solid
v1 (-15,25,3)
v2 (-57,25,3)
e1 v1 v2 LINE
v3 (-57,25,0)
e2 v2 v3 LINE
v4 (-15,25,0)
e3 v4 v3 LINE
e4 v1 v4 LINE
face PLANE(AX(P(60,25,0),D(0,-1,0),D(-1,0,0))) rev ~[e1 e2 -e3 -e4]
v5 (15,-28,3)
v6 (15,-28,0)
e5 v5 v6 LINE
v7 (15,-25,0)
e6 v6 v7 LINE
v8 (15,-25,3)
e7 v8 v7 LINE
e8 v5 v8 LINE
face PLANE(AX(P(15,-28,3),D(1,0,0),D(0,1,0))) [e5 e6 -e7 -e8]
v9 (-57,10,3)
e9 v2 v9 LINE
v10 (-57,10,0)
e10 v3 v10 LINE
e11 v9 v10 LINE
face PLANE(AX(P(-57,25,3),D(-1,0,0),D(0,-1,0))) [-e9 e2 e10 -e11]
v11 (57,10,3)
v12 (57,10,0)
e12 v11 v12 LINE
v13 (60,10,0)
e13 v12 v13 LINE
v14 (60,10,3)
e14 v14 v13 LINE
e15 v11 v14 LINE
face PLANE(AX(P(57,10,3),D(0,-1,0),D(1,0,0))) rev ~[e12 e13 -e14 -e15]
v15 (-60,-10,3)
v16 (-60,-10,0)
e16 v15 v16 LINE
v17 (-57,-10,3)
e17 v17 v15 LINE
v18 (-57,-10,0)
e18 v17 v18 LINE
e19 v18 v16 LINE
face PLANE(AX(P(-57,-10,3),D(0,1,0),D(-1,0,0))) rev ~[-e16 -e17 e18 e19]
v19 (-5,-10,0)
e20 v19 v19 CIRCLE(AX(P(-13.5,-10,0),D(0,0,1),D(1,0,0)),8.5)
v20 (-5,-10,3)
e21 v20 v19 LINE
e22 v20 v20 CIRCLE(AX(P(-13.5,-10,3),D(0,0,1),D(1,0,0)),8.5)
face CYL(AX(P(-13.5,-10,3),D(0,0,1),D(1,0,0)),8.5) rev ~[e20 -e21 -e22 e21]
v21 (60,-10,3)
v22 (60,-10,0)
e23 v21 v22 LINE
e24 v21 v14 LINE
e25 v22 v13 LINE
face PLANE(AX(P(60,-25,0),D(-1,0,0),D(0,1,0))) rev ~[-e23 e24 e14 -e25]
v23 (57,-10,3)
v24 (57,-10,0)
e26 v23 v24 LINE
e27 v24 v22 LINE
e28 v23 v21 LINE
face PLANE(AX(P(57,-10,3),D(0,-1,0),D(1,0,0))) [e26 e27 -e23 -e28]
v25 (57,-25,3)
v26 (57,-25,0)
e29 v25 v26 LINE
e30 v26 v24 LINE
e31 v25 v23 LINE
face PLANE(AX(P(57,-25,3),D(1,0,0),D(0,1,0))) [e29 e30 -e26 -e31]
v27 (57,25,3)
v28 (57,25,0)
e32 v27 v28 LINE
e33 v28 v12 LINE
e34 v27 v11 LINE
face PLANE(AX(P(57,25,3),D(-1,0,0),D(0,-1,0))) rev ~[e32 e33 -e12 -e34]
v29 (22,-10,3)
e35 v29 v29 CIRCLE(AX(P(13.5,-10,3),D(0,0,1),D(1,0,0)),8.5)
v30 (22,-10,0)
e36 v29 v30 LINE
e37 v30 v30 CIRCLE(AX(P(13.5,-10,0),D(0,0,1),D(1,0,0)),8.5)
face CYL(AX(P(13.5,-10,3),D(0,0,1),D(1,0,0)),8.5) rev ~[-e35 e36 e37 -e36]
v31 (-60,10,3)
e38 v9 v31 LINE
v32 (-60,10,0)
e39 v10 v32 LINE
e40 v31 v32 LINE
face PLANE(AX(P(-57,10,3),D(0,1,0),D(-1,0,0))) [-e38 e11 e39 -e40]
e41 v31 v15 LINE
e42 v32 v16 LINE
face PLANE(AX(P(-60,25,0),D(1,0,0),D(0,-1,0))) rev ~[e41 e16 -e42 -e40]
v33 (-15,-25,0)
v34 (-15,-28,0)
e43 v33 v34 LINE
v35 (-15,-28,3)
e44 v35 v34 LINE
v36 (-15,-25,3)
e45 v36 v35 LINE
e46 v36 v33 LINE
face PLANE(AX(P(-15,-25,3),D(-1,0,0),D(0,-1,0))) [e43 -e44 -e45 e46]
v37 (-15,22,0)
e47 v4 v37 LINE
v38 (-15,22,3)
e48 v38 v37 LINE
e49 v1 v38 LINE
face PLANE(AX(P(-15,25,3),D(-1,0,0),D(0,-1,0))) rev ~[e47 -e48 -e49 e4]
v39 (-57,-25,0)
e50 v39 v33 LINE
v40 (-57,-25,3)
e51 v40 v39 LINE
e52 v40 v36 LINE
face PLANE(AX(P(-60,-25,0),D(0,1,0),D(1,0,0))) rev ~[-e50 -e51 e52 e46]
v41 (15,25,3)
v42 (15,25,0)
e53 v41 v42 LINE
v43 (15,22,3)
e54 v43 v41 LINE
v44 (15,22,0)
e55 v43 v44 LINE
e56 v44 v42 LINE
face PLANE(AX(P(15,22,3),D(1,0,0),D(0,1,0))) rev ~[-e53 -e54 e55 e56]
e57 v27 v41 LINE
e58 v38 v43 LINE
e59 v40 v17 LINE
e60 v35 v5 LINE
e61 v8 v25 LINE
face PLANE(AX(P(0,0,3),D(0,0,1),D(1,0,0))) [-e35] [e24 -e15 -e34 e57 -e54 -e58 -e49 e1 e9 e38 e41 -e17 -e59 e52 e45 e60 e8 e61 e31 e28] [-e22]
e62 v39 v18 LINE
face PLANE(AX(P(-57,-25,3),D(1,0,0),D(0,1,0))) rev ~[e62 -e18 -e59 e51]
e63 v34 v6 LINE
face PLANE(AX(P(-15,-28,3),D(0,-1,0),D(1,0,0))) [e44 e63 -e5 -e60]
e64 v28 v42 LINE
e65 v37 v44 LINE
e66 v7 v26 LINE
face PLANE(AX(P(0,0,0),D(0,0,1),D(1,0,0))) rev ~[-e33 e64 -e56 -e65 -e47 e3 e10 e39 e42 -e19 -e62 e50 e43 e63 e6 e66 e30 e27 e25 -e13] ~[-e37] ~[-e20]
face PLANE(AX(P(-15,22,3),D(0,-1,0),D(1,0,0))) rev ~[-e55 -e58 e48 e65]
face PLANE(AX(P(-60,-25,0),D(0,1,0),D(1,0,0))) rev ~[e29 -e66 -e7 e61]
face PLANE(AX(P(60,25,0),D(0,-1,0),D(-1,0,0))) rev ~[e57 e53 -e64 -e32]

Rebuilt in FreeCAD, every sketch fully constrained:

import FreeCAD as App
import Part
import Sketcher
Q = App.Units.Quantity

doc = App.newDocument("Part")
params = doc.addObject("Spreadsheet::Sheet", "Params")
for row, (alias, value) in enumerate([
    ("sketch1_width", "120 mm"),
    ("sketch1_height", "50 mm"),
    ("pad1_length", "3 mm"),
    ("sketch2_width", "3 mm"),
    ("sketch2_height", "15 mm"),
    ("sketch3_width", "30 mm"),
    ("sketch3_height", "3 mm"),
    ("sketch4_width", "30 mm"),
    ("sketch4_height", "3 mm"),
    ("pad2_length", "3 mm"),
    ("sketch5_diameter", "17 mm"),
], start=1):
    params.set(f"A{row}", alias)
    params.set(f"B{row}", "=" + value)
    params.setAlias(f"B{row}", alias)

body = doc.addObject("PartDesign::Body", "Body")

# Sketch on XY plane
sketch1 = body.newObject("Sketcher::SketchObject", "Sketch")
sketch1.AttachmentSupport = (doc.getObject("XY_Plane"), [""])
sketch1.MapMode = "FlatFace"
sketch1.addGeometry(Part.LineSegment(App.Vector(-60, 25, 0), App.Vector(-60, -25, 0)), False)
sketch1.addGeometry(Part.LineSegment(App.Vector(-60, -25, 0), App.Vector(60, -25, 0)), False)
sketch1.addGeometry(Part.LineSegment(App.Vector(60, -25, 0), App.Vector(60, 25, 0)), False)
sketch1.addGeometry(Part.LineSegment(App.Vector(60, 25, 0), App.Vector(-60, 25, 0)), False)
sketch1.addConstraint(Sketcher.Constraint("Coincident", 0, 2, 1, 1))
sketch1.addConstraint(Sketcher.Constraint("Coincident", 1, 2, 2, 1))
sketch1.addConstraint(Sketcher.Constraint("Coincident", 2, 2, 3, 1))
sketch1.addConstraint(Sketcher.Constraint("Coincident", 3, 2, 0, 1))
sketch1.addConstraint(Sketcher.Constraint("Vertical", 0))
sketch1.addConstraint(Sketcher.Constraint("Horizontal", 1))
sketch1.addConstraint(Sketcher.Constraint("Vertical", 2))
sketch1.addConstraint(Sketcher.Constraint("Horizontal", 3))
sketch1.addConstraint(Sketcher.Constraint("Symmetric", 0, 2, 2, 2, -1, 1))
sketch1.addConstraint(Sketcher.Constraint("DistanceX", 1, 1, 1, 2, Q("120 mm")))
sketch1.addConstraint(Sketcher.Constraint("DistanceY", 0, 2, 0, 1, Q("50 mm")))
sketch1.setExpression("Constraints[9]", "Params.sketch1_width")
sketch1.setExpression("Constraints[10]", "Params.sketch1_height")
pad1 = body.newObject("PartDesign::Pad", "Pad")
pad1.Profile = sketch1
pad1.setExpression("Length", "Params.pad1_length")

# Sketch on XY plane
sketch2 = body.newObject("Sketcher::SketchObject", "Sketch001")
sketch2.AttachmentSupport = (doc.getObject("XY_Plane"), [""])
sketch2.MapMode = "FlatFace"
sketch2.AttachmentOffset = App.Placement(App.Vector(0, 0, 3), App.Rotation())
sketch2.addGeometry(Part.LineSegment(App.Vector(60, 10, 0), App.Vector(60, 25, 0)), False)
sketch2.addGeometry(Part.LineSegment(App.Vector(60, 25, 0), App.Vector(57, 25, 0)), False)
sketch2.addGeometry(Part.LineSegment(App.Vector(57, 25, 0), App.Vector(57, 10, 0)), False)
sketch2.addGeometry(Part.LineSegment(App.Vector(57, 10, 0), App.Vector(60, 10, 0)), False)
sketch2.addGeometry(Part.LineSegment(App.Vector(-60, -25, 0), App.Vector(-57, -25, 0)), False)
sketch2.addGeometry(Part.LineSegment(App.Vector(-57, -25, 0), App.Vector(-57, -10, 0)), False)
sketch2.addGeometry(Part.LineSegment(App.Vector(-57, -10, 0), App.Vector(-60, -10, 0)), False)
sketch2.addGeometry(Part.LineSegment(App.Vector(-60, -10, 0), App.Vector(-60, -25, 0)), False)
sketch2.addGeometry(Part.LineSegment(App.Vector(-57, 10, 0), App.Vector(-57, 25, 0)), False)
sketch2.addGeometry(Part.LineSegment(App.Vector(-57, 25, 0), App.Vector(-60, 25, 0)), False)
sketch2.addGeometry(Part.LineSegment(App.Vector(-60, 25, 0), App.Vector(-60, 10, 0)), False)
sketch2.addGeometry(Part.LineSegment(App.Vector(-60, 10, 0), App.Vector(-57, 10, 0)), False)
sketch2.addGeometry(Part.LineSegment(App.Vector(60, -25, 0), App.Vector(60, -10, 0)), False)
sketch2.addGeometry(Part.LineSegment(App.Vector(60, -10, 0), App.Vector(57, -10, 0)), False)
sketch2.addGeometry(Part.LineSegment(App.Vector(57, -10, 0), App.Vector(57, -25, 0)), False)
sketch2.addGeometry(Part.LineSegment(App.Vector(57, -25, 0), App.Vector(60, -25, 0)), False)
sketch2.addConstraint(Sketcher.Constraint("Coincident", 0, 2, 1, 1))
sketch2.addConstraint(Sketcher.Constraint("Coincident", 1, 2, 2, 1))
sketch2.addConstraint(Sketcher.Constraint("Coincident", 2, 2, 3, 1))
sketch2.addConstraint(Sketcher.Constraint("Coincident", 3, 2, 0, 1))
sketch2.addConstraint(Sketcher.Constraint("Coincident", 4, 2, 5, 1))
sketch2.addConstraint(Sketcher.Constraint("Coincident", 5, 2, 6, 1))
sketch2.addConstraint(Sketcher.Constraint("Coincident", 6, 2, 7, 1))
sketch2.addConstraint(Sketcher.Constraint("Coincident", 7, 2, 4, 1))
sketch2.addConstraint(Sketcher.Constraint("Coincident", 8, 2, 9, 1))
sketch2.addConstraint(Sketcher.Constraint("Coincident", 9, 2, 10, 1))
sketch2.addConstraint(Sketcher.Constraint("Coincident", 10, 2, 11, 1))
sketch2.addConstraint(Sketcher.Constraint("Coincident", 11, 2, 8, 1))
sketch2.addConstraint(Sketcher.Constraint("Coincident", 12, 2, 13, 1))
sketch2.addConstraint(Sketcher.Constraint("Coincident", 13, 2, 14, 1))
sketch2.addConstraint(Sketcher.Constraint("Coincident", 14, 2, 15, 1))
sketch2.addConstraint(Sketcher.Constraint("Coincident", 15, 2, 12, 1))
sketch2.addConstraint(Sketcher.Constraint("Vertical", 0))
sketch2.addConstraint(Sketcher.Constraint("Horizontal", 1))
sketch2.addConstraint(Sketcher.Constraint("Vertical", 2))
sketch2.addConstraint(Sketcher.Constraint("Horizontal", 3))
sketch2.addConstraint(Sketcher.Constraint("Horizontal", 4))
sketch2.addConstraint(Sketcher.Constraint("Vertical", 5))
sketch2.addConstraint(Sketcher.Constraint("Horizontal", 6))
sketch2.addConstraint(Sketcher.Constraint("Vertical", 7))
sketch2.addConstraint(Sketcher.Constraint("Vertical", 8))
sketch2.addConstraint(Sketcher.Constraint("Horizontal", 9))
sketch2.addConstraint(Sketcher.Constraint("Vertical", 10))
sketch2.addConstraint(Sketcher.Constraint("Horizontal", 11))
sketch2.addConstraint(Sketcher.Constraint("Vertical", 12))
sketch2.addConstraint(Sketcher.Constraint("Horizontal", 13))
sketch2.addConstraint(Sketcher.Constraint("Vertical", 14))
sketch2.addConstraint(Sketcher.Constraint("Horizontal", 15))
sketch2.addConstraint(Sketcher.Constraint("Symmetric", 1, 2, 4, 2, -1, 1))
sketch2.addConstraint(Sketcher.Constraint("Symmetric", 3, 2, 6, 2, -1, 1))
sketch2.addConstraint(Sketcher.Constraint("Symmetric", 10, 2, 12, 2, -1, 1))
sketch2.addConstraint(Sketcher.Constraint("Symmetric", 8, 2, 14, 2, -1, 1))
sketch2.addConstraint(Sketcher.Constraint("Symmetric", 1, 2, 8, 2, -2))
sketch2.addConstraint(Sketcher.Constraint("Symmetric", 3, 2, 10, 2, -2))
sketch2.addConstraint(Sketcher.Constraint("DistanceX", 1, 2, 1, 1, Q("3 mm")))
sketch2.addConstraint(Sketcher.Constraint("DistanceY", 0, 1, 0, 2, Q("15 mm")))
sketch2.addConstraint(Sketcher.Constraint("DistanceX", -1, 1, 0, 2, Q("60 mm")))
sketch2.addConstraint(Sketcher.Constraint("DistanceY", -1, 1, 0, 2, Q("25 mm")))
sketch2.setExpression("Constraints[38]", "Params.sketch2_width")
sketch2.setExpression("Constraints[39]", "Params.sketch2_height")
pocket1 = body.newObject("PartDesign::Pocket", "Pocket")
pocket1.Profile = sketch2
pocket1.Type = "ThroughAll"

# Sketch on XY plane
sketch3 = body.newObject("Sketcher::SketchObject", "Sketch002")
sketch3.AttachmentSupport = (doc.getObject("XY_Plane"), [""])
sketch3.MapMode = "FlatFace"
sketch3.AttachmentOffset = App.Placement(App.Vector(0, 0, 3), App.Rotation())
sketch3.addGeometry(Part.LineSegment(App.Vector(-15, 25, 0), App.Vector(-15, 22, 0)), False)
sketch3.addGeometry(Part.LineSegment(App.Vector(-15, 22, 0), App.Vector(15, 22, 0)), False)
sketch3.addGeometry(Part.LineSegment(App.Vector(15, 22, 0), App.Vector(15, 25, 0)), False)
sketch3.addGeometry(Part.LineSegment(App.Vector(15, 25, 0), App.Vector(-15, 25, 0)), False)
sketch3.addConstraint(Sketcher.Constraint("Coincident", 0, 2, 1, 1))
sketch3.addConstraint(Sketcher.Constraint("Coincident", 1, 2, 2, 1))
sketch3.addConstraint(Sketcher.Constraint("Coincident", 2, 2, 3, 1))
sketch3.addConstraint(Sketcher.Constraint("Coincident", 3, 2, 0, 1))
sketch3.addConstraint(Sketcher.Constraint("Vertical", 0))
sketch3.addConstraint(Sketcher.Constraint("Horizontal", 1))
sketch3.addConstraint(Sketcher.Constraint("Vertical", 2))
sketch3.addConstraint(Sketcher.Constraint("Horizontal", 3))
sketch3.addConstraint(Sketcher.Constraint("DistanceX", 1, 1, 1, 2, Q("30 mm")))
sketch3.addConstraint(Sketcher.Constraint("DistanceY", 0, 2, 0, 1, Q("3 mm")))
sketch3.addConstraint(Sketcher.Constraint("DistanceX", 0, 2, -1, 1, Q("15 mm")))
sketch3.addConstraint(Sketcher.Constraint("DistanceY", -1, 1, 0, 2, Q("22 mm")))
sketch3.setExpression("Constraints[8]", "Params.sketch3_width")
sketch3.setExpression("Constraints[9]", "Params.sketch3_height")
pocket2 = body.newObject("PartDesign::Pocket", "Pocket001")
pocket2.Profile = sketch3
pocket2.Type = "ThroughAll"

# Sketch on XY plane
sketch4 = body.newObject("Sketcher::SketchObject", "Sketch003")
sketch4.AttachmentSupport = (doc.getObject("XY_Plane"), [""])
sketch4.MapMode = "FlatFace"
sketch4.AttachmentOffset = App.Placement(App.Vector(0, 0, 3), App.Rotation())
sketch4.addGeometry(Part.LineSegment(App.Vector(-15, -25, 0), App.Vector(-15, -28, 0)), False)
sketch4.addGeometry(Part.LineSegment(App.Vector(-15, -28, 0), App.Vector(15, -28, 0)), False)
sketch4.addGeometry(Part.LineSegment(App.Vector(15, -28, 0), App.Vector(15, -25, 0)), False)
sketch4.addGeometry(Part.LineSegment(App.Vector(15, -25, 0), App.Vector(-15, -25, 0)), False)
sketch4.addConstraint(Sketcher.Constraint("Coincident", 0, 2, 1, 1))
sketch4.addConstraint(Sketcher.Constraint("Coincident", 1, 2, 2, 1))
sketch4.addConstraint(Sketcher.Constraint("Coincident", 2, 2, 3, 1))
sketch4.addConstraint(Sketcher.Constraint("Coincident", 3, 2, 0, 1))
sketch4.addConstraint(Sketcher.Constraint("Vertical", 0))
sketch4.addConstraint(Sketcher.Constraint("Horizontal", 1))
sketch4.addConstraint(Sketcher.Constraint("Vertical", 2))
sketch4.addConstraint(Sketcher.Constraint("Horizontal", 3))
sketch4.addConstraint(Sketcher.Constraint("DistanceX", 1, 1, 1, 2, Q("30 mm")))
sketch4.addConstraint(Sketcher.Constraint("DistanceY", 0, 2, 0, 1, Q("3 mm")))
sketch4.addConstraint(Sketcher.Constraint("DistanceX", 0, 2, -1, 1, Q("15 mm")))
sketch4.addConstraint(Sketcher.Constraint("DistanceY", 0, 2, -1, 1, Q("28 mm")))
sketch4.setExpression("Constraints[8]", "Params.sketch4_width")
sketch4.setExpression("Constraints[9]", "Params.sketch4_height")
pad2 = body.newObject("PartDesign::Pad", "Pad001")
pad2.Profile = sketch4
pad2.setExpression("Length", "Params.pad2_length")
pad2.Reversed = True

# Sketch on XY plane
sketch5 = body.newObject("Sketcher::SketchObject", "Sketch004")
sketch5.AttachmentSupport = (doc.getObject("XY_Plane"), [""])
sketch5.MapMode = "FlatFace"
sketch5.AttachmentOffset = App.Placement(App.Vector(0, 0, 3), App.Rotation())
sketch5.addGeometry(Part.Circle(App.Vector(-14, -10, 0), App.Vector(0, 0, 1), 8), False)
sketch5.addGeometry(Part.Circle(App.Vector(14, -10, 0), App.Vector(0, 0, 1), 8), False)
sketch5.addConstraint(Sketcher.Constraint("Equal", 0, 1))
sketch5.addConstraint(Sketcher.Constraint("Symmetric", 0, 3, 1, 3, -2))
sketch5.addConstraint(Sketcher.Constraint("Diameter", 0, Q("17 mm")))
sketch5.addConstraint(Sketcher.Constraint("DistanceX", 0, 3, 1, 3, Q("27 mm")))
sketch5.addConstraint(Sketcher.Constraint("DistanceY", 0, 3, -1, 1, Q("10 mm")))
sketch5.setExpression("Constraints[2]", "Params.sketch5_diameter")
pocket3 = body.newObject("PartDesign::Pocket", "Pocket002")
pocket3.Profile = sketch5
pocket3.Type = "ThroughAll"

doc.recompute()
